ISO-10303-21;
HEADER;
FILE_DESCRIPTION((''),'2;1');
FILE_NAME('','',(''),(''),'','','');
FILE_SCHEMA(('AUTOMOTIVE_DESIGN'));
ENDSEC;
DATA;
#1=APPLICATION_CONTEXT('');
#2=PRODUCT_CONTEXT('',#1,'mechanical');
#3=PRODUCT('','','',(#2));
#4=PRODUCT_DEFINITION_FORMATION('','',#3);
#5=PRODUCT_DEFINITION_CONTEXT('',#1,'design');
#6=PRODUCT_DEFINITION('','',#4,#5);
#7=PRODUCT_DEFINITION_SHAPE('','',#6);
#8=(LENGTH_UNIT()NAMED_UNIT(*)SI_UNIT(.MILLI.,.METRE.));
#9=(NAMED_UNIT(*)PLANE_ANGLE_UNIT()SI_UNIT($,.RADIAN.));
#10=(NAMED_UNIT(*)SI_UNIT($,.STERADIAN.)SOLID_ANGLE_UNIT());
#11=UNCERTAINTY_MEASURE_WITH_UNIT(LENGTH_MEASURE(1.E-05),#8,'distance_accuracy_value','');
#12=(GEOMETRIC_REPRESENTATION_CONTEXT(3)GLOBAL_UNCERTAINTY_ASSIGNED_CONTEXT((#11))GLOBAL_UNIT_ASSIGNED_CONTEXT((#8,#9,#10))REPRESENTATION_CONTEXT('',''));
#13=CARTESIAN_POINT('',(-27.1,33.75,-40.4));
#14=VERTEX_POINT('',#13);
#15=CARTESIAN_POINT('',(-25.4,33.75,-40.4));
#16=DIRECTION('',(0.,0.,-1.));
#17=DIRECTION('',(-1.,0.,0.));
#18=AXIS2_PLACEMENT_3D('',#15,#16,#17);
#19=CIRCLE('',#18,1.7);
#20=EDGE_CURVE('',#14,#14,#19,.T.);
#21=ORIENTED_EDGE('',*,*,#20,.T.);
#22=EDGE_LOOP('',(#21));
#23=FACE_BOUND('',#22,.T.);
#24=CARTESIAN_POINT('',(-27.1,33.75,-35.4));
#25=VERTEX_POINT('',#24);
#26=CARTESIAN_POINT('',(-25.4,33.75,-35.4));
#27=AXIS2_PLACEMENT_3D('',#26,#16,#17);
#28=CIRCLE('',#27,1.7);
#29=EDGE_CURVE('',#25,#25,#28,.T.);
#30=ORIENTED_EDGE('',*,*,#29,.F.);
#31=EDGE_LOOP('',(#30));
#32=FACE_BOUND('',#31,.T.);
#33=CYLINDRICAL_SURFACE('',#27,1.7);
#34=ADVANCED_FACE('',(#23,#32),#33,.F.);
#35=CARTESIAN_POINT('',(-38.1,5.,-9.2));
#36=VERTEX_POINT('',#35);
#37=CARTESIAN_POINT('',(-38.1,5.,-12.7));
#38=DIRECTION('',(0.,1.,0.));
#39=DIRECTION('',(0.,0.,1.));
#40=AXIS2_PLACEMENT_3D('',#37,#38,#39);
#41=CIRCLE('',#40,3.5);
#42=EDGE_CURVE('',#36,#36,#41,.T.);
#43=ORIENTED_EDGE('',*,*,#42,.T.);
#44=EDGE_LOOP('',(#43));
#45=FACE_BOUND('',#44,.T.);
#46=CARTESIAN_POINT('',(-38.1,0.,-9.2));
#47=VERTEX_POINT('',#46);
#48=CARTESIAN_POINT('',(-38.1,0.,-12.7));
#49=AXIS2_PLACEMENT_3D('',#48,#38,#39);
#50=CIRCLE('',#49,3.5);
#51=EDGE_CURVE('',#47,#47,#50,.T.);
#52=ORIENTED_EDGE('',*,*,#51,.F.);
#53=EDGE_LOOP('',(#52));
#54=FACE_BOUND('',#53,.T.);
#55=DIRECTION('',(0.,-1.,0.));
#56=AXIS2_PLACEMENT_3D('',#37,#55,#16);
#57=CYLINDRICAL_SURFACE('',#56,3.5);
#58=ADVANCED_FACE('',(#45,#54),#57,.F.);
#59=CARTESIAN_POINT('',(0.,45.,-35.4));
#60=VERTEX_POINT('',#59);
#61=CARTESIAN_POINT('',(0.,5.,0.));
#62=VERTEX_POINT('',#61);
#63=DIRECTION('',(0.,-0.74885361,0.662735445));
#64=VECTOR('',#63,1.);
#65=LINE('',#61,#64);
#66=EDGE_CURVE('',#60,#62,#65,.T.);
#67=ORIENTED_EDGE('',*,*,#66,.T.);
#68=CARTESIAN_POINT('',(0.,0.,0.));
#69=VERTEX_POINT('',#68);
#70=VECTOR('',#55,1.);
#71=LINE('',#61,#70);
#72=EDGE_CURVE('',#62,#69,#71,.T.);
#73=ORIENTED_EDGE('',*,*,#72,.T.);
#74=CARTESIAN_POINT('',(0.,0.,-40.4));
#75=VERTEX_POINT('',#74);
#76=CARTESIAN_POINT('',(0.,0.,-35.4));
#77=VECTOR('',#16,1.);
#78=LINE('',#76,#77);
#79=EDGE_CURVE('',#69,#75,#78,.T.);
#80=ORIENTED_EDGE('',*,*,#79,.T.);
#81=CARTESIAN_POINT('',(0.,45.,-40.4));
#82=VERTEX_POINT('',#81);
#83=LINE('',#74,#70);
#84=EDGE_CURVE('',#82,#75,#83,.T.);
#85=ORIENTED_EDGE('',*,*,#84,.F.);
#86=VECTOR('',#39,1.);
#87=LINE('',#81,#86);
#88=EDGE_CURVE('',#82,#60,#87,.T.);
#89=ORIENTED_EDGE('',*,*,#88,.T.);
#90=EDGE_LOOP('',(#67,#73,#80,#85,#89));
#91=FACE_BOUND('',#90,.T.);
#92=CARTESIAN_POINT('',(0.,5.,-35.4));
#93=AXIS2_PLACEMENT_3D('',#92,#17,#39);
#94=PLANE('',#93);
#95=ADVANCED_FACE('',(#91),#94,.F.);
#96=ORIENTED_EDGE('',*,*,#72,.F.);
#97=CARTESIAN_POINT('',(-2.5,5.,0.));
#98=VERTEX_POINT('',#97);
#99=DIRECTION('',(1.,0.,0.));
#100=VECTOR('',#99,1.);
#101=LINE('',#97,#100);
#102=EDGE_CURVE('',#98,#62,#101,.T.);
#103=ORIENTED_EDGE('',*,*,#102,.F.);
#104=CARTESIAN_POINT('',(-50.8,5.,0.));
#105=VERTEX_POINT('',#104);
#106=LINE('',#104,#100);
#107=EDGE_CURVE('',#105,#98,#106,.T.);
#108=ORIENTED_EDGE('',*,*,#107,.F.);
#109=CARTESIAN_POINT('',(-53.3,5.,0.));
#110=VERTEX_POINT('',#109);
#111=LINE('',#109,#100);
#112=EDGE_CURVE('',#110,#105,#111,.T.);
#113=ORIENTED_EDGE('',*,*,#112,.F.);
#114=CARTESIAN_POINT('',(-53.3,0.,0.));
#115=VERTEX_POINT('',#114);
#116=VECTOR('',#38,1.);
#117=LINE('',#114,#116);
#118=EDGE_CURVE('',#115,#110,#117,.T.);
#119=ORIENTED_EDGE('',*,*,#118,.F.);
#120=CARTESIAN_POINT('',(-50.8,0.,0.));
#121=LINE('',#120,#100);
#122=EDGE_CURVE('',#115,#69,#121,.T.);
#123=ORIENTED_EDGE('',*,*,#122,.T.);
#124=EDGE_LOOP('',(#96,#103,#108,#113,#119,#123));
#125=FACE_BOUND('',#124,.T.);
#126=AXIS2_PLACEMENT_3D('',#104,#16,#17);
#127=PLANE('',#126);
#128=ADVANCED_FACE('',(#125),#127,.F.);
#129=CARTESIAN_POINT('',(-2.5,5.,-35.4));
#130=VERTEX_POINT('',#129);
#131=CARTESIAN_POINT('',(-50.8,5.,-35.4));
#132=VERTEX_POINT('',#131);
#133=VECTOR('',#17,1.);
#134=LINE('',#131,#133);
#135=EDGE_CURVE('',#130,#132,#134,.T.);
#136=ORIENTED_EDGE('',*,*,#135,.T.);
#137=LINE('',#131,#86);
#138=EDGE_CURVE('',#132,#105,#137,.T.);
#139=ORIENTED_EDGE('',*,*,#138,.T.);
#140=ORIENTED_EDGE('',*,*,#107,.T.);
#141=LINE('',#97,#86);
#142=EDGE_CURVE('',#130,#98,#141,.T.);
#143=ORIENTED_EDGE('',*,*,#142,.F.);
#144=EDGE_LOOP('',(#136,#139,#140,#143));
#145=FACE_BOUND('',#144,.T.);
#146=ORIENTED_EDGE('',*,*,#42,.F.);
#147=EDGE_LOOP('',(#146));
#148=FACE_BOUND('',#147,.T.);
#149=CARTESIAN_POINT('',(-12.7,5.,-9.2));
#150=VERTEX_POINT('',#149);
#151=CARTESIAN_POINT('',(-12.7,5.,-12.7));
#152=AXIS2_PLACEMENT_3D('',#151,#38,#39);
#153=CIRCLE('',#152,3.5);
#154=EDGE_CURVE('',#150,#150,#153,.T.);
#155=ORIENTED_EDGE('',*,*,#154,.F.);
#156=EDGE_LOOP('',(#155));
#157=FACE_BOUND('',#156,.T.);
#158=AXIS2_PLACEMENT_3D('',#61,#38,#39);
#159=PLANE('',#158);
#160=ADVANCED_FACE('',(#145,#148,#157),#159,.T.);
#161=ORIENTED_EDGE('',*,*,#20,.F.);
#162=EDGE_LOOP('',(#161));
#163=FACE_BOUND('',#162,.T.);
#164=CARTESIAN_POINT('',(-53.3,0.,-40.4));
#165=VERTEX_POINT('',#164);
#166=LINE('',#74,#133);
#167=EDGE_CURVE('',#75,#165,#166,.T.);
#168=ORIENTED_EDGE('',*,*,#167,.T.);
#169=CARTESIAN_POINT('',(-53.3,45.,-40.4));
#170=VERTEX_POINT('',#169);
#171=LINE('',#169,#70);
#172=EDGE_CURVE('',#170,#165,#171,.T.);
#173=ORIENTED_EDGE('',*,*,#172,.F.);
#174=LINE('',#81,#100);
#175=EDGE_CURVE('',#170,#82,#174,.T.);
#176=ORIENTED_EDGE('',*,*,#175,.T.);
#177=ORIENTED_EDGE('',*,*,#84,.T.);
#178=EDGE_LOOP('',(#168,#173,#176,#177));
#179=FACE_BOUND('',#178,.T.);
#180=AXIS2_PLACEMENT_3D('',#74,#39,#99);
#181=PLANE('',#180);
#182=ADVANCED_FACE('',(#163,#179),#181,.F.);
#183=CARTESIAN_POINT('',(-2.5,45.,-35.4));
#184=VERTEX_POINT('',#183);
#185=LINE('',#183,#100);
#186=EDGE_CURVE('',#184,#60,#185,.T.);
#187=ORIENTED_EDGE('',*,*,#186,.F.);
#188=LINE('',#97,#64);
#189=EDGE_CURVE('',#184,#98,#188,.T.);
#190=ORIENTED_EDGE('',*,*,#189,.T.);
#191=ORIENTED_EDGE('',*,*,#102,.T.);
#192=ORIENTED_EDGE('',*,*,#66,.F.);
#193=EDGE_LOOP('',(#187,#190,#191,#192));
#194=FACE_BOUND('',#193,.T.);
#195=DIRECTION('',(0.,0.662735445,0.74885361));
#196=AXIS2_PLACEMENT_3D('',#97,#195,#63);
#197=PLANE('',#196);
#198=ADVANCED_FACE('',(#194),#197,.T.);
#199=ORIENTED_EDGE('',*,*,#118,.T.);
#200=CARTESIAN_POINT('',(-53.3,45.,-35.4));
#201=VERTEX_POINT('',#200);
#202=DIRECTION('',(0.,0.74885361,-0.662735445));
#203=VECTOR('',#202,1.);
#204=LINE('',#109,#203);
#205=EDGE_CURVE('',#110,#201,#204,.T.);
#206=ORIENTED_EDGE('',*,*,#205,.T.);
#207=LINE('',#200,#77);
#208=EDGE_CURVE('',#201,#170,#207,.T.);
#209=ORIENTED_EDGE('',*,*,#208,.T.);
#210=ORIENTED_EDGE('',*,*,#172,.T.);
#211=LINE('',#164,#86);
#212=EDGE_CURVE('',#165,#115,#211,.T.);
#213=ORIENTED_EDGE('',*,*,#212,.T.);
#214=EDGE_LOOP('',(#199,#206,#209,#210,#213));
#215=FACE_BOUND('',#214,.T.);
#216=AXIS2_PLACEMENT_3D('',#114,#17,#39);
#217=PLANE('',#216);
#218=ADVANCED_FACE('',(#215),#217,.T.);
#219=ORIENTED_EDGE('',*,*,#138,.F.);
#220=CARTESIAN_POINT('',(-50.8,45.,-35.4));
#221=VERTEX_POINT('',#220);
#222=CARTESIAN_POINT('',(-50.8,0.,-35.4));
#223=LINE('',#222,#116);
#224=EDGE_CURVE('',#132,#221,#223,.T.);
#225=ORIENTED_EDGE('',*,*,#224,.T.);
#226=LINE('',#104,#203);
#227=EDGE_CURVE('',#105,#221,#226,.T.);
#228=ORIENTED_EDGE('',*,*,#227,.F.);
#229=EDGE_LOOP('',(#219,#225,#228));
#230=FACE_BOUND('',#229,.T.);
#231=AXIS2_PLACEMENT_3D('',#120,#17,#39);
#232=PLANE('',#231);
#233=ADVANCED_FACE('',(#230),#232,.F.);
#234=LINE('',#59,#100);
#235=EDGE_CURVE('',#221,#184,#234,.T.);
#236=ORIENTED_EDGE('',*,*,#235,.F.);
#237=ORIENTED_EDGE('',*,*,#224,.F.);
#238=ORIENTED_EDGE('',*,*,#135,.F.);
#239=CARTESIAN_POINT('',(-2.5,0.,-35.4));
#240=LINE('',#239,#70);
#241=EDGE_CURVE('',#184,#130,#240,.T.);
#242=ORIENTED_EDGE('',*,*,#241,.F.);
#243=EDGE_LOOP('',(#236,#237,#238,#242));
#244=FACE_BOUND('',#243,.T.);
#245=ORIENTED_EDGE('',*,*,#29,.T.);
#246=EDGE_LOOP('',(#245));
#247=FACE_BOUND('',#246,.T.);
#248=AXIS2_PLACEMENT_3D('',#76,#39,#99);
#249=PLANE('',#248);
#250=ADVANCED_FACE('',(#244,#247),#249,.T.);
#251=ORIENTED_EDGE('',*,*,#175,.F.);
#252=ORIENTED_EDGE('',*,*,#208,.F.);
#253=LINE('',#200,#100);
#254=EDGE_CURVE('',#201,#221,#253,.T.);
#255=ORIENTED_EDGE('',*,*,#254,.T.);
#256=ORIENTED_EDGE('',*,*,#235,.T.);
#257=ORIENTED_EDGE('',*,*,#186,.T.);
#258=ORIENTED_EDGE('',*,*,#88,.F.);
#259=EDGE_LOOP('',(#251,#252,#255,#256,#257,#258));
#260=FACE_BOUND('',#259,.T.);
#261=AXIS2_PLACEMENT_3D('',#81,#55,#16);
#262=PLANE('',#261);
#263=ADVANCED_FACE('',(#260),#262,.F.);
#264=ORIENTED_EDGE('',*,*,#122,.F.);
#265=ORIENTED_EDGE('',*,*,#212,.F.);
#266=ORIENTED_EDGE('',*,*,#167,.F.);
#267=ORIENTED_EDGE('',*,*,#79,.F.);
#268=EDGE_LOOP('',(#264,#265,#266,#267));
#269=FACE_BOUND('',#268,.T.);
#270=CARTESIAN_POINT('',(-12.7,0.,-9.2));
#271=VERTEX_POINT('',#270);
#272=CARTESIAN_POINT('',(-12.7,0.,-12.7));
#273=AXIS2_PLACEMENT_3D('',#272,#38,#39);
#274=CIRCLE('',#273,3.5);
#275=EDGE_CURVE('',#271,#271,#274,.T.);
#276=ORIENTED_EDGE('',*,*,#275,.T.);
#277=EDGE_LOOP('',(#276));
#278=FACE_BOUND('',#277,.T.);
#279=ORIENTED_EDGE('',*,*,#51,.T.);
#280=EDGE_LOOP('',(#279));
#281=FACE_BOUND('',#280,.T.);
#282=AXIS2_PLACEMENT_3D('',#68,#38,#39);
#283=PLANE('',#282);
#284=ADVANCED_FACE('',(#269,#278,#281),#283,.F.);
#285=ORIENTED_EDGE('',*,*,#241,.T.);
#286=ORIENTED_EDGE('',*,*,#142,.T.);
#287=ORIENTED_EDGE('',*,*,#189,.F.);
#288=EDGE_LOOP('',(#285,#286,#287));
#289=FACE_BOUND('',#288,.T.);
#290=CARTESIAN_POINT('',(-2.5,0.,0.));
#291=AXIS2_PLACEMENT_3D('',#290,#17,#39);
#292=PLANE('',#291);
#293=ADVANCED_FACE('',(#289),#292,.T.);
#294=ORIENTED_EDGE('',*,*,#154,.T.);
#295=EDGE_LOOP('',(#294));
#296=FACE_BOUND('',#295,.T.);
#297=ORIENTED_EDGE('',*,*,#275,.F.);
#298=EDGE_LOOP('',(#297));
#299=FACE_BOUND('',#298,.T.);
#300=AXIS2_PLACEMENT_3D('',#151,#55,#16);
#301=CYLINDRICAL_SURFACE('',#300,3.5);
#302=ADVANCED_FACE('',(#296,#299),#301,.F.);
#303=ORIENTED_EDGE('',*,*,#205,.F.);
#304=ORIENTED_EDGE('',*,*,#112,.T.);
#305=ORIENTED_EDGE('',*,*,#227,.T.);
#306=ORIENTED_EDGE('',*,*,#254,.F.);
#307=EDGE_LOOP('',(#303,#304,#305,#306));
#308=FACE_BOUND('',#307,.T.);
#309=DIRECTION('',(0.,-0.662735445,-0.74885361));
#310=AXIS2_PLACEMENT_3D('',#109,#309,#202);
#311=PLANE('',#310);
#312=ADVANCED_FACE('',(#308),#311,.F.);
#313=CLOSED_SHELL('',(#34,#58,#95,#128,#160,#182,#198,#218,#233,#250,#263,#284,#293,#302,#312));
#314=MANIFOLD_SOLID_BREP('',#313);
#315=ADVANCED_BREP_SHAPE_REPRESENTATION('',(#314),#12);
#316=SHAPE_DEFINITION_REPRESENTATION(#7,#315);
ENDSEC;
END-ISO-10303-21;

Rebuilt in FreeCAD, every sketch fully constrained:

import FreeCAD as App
import Part
import Sketcher

V = App.Vector


def add_polygon(sketch, points):
    """Adds a closed chain of lines whose ends are joined by coincident constraints."""
    first, n = sketch.GeometryCount, len(points)
    for a, b in zip(points, points[1:] + points[:1]):
        sketch.addGeometry(Part.LineSegment(App.Vector(*a, 0), App.Vector(*b, 0)), False)
    for i in range(n):
        sketch.addConstraint(Sketcher.Constraint("Coincident", first + i, 2, first + (i + 1) % n, 1))

doc = App.newDocument("Part")
body = doc.addObject("PartDesign::Body", "Body")

# Sketch on XZ plane
sketch1 = body.newObject("Sketcher::SketchObject", "Sketch")
sketch1.AttachmentSupport = (doc.getObject("XZ_Plane"), [""])
sketch1.MapMode = "FlatFace"
add_polygon(sketch1, [(-50.8, -35.4), (-50.8, 0), (0, 0), (0, -35.4)])  # lines 0-3
sketch1.addGeometry(Part.Circle(V(-38.1, -12.7, 0), V(0, 0, 1), 3.5), False)  # 4
sketch1.addGeometry(Part.Circle(V(-12.7, -12.7, 0), V(0, 0, 1), 3.5), False)  # 5
sketch1.addConstraint([
    Sketcher.Constraint("Vertical", 0),
    Sketcher.Constraint("Horizontal", 1),
    Sketcher.Constraint("Vertical", 2),
    Sketcher.Constraint("Horizontal", 3),
    Sketcher.Constraint("Coincident", 1, 2, -1, 1),
    Sketcher.Constraint("Equal", 4, 5),
    Sketcher.Constraint("Horizontal", 4, 3, 5, 3),
    Sketcher.Constraint("Diameter", 4, 7.0),
    Sketcher.Constraint("DistanceX", 1, 1, 1, 2, 50.8),
    Sketcher.Constraint("DistanceY", 0, 1, 0, 2, 35.4),
    Sketcher.Constraint("DistanceX", 4, 3, -1, 1, 38.1),
    Sketcher.Constraint("DistanceY", 4, 3, -1, 1, 12.7),
    Sketcher.Constraint("DistanceX", 5, 3, -1, 1, 12.7),
])
pad1 = body.newObject("PartDesign::Pad", "Pad")
pad1.Profile = sketch1
pad1.Length = 5
pad1.Reversed = True

# Sketch on XY plane
sketch2 = body.newObject("Sketcher::SketchObject", "Sketch001")
sketch2.AttachmentSupport = (doc.getObject("XY_Plane"), [""])
sketch2.MapMode = "FlatFace"
sketch2.AttachmentOffset = App.Placement(V(0, 0, -35.4), App.Rotation())
add_polygon(sketch2, [(0, 45), (0, 0), (-51, 0), (-51, 45)])  # lines 0-3
sketch2.addConstraint([
    Sketcher.Constraint("Vertical", 0),
    Sketcher.Constraint("Horizontal", 1),
    Sketcher.Constraint("Vertical", 2),
    Sketcher.Constraint("Horizontal", 3),
    Sketcher.Constraint("Coincident", 0, 2, -1, 1),
    Sketcher.Constraint("DistanceY", 0, 2, 0, 1, 45.0),
    Sketcher.Constraint("DistanceX", 1, 2, 1, 1, 50.8),
])
pad2 = body.newObject("PartDesign::Pad", "Pad001")
pad2.Profile = sketch2
pad2.Length = 5
pad2.Reversed = True

# Sketch on XY plane
sketch3 = body.newObject("Sketcher::SketchObject", "Sketch002")
sketch3.AttachmentSupport = (doc.getObject("XY_Plane"), [""])
sketch3.MapMode = "FlatFace"
sketch3.AttachmentOffset = App.Placement(V(0, 0, -40.4), App.Rotation())
sketch3.addGeometry(Part.Circle(V(-25.4, 33.8, 0), V(0, 0, 1), 1.7), False)
sketch3.addConstraint([
    Sketcher.Constraint("Diameter", 0, 3.4),
    Sketcher.Constraint("DistanceX", 0, 3, -1, 1, 25.4),
    Sketcher.Constraint("DistanceY", -1, 1, 0, 3, 33.75),
])
pocket1 = body.newObject("PartDesign::Pocket", "Pocket")
pocket1.Profile = sketch3
pocket1.Length = 5
pocket1.Reversed = True

# Sketch on YZ plane
sketch4 = body.newObject("Sketcher::SketchObject", "Sketch003")
sketch4.AttachmentSupport = (doc.getObject("YZ_Plane"), [""])
sketch4.MapMode = "FlatFace"
add_polygon(sketch4, [(45, -35), (5, 0), (0, 0), (0, -40), (45, -40)])  # lines 0-4
sketch4.addConstraint([
    Sketcher.Constraint("Horizontal", 1),
    Sketcher.Constraint("Vertical", 2),
    Sketcher.Constraint("Horizontal", 3),
    Sketcher.Constraint("Vertical", 4),
    Sketcher.Constraint("Coincident", 1, 2, -1, 1),
    Sketcher.Constraint("Equal", 1, 4),
    Sketcher.Constraint("DistanceX", 1, 2, 1, 1, 5.0),
    Sketcher.Constraint("DistanceX", 3, 1, 3, 2, 45.0),
    Sketcher.Constraint("DistanceY", 2, 2, 2, 1, 40.4),
])
pad3 = body.newObject("PartDesign::Pad", "Pad002")
pad3.Profile = sketch4
pad3.Length = 2.5
pad3.Reversed = True

# Sketch on YZ plane
sketch5 = body.newObject("Sketcher::SketchObject", "Sketch004")
sketch5.AttachmentSupport = (doc.getObject("YZ_Plane"), [""])
sketch5.MapMode = "FlatFace"
sketch5.AttachmentOffset = App.Placement(V(0, 0, -50.8), App.Rotation())
add_polygon(sketch5, [(45, -35), (45, -40), (0, -40), (0, 0), (5, 0)])  # lines 0-4
sketch5.addConstraint([
    Sketcher.Constraint("Vertical", 0),
    Sketcher.Constraint("Horizontal", 1),
    Sketcher.Constraint("Vertical", 2),
    Sketcher.Constraint("Horizontal", 3),
    Sketcher.Constraint("Coincident", 2, 2, -1, 1),
    Sketcher.Constraint("Equal", 3, 0),
    Sketcher.Constraint("DistanceX", 1, 2, 1, 1, 45.0),
    Sketcher.Constraint("DistanceX", 3, 1, 3, 2, 5.0),
    Sketcher.Constraint("DistanceY", 2, 1, 2, 2, 40.4),
])
pad4 = body.newObject("PartDesign::Pad", "Pad003")
pad4.Profile = sketch5
pad4.Length = 2.5
pad4.Reversed = True

doc.recompute()
